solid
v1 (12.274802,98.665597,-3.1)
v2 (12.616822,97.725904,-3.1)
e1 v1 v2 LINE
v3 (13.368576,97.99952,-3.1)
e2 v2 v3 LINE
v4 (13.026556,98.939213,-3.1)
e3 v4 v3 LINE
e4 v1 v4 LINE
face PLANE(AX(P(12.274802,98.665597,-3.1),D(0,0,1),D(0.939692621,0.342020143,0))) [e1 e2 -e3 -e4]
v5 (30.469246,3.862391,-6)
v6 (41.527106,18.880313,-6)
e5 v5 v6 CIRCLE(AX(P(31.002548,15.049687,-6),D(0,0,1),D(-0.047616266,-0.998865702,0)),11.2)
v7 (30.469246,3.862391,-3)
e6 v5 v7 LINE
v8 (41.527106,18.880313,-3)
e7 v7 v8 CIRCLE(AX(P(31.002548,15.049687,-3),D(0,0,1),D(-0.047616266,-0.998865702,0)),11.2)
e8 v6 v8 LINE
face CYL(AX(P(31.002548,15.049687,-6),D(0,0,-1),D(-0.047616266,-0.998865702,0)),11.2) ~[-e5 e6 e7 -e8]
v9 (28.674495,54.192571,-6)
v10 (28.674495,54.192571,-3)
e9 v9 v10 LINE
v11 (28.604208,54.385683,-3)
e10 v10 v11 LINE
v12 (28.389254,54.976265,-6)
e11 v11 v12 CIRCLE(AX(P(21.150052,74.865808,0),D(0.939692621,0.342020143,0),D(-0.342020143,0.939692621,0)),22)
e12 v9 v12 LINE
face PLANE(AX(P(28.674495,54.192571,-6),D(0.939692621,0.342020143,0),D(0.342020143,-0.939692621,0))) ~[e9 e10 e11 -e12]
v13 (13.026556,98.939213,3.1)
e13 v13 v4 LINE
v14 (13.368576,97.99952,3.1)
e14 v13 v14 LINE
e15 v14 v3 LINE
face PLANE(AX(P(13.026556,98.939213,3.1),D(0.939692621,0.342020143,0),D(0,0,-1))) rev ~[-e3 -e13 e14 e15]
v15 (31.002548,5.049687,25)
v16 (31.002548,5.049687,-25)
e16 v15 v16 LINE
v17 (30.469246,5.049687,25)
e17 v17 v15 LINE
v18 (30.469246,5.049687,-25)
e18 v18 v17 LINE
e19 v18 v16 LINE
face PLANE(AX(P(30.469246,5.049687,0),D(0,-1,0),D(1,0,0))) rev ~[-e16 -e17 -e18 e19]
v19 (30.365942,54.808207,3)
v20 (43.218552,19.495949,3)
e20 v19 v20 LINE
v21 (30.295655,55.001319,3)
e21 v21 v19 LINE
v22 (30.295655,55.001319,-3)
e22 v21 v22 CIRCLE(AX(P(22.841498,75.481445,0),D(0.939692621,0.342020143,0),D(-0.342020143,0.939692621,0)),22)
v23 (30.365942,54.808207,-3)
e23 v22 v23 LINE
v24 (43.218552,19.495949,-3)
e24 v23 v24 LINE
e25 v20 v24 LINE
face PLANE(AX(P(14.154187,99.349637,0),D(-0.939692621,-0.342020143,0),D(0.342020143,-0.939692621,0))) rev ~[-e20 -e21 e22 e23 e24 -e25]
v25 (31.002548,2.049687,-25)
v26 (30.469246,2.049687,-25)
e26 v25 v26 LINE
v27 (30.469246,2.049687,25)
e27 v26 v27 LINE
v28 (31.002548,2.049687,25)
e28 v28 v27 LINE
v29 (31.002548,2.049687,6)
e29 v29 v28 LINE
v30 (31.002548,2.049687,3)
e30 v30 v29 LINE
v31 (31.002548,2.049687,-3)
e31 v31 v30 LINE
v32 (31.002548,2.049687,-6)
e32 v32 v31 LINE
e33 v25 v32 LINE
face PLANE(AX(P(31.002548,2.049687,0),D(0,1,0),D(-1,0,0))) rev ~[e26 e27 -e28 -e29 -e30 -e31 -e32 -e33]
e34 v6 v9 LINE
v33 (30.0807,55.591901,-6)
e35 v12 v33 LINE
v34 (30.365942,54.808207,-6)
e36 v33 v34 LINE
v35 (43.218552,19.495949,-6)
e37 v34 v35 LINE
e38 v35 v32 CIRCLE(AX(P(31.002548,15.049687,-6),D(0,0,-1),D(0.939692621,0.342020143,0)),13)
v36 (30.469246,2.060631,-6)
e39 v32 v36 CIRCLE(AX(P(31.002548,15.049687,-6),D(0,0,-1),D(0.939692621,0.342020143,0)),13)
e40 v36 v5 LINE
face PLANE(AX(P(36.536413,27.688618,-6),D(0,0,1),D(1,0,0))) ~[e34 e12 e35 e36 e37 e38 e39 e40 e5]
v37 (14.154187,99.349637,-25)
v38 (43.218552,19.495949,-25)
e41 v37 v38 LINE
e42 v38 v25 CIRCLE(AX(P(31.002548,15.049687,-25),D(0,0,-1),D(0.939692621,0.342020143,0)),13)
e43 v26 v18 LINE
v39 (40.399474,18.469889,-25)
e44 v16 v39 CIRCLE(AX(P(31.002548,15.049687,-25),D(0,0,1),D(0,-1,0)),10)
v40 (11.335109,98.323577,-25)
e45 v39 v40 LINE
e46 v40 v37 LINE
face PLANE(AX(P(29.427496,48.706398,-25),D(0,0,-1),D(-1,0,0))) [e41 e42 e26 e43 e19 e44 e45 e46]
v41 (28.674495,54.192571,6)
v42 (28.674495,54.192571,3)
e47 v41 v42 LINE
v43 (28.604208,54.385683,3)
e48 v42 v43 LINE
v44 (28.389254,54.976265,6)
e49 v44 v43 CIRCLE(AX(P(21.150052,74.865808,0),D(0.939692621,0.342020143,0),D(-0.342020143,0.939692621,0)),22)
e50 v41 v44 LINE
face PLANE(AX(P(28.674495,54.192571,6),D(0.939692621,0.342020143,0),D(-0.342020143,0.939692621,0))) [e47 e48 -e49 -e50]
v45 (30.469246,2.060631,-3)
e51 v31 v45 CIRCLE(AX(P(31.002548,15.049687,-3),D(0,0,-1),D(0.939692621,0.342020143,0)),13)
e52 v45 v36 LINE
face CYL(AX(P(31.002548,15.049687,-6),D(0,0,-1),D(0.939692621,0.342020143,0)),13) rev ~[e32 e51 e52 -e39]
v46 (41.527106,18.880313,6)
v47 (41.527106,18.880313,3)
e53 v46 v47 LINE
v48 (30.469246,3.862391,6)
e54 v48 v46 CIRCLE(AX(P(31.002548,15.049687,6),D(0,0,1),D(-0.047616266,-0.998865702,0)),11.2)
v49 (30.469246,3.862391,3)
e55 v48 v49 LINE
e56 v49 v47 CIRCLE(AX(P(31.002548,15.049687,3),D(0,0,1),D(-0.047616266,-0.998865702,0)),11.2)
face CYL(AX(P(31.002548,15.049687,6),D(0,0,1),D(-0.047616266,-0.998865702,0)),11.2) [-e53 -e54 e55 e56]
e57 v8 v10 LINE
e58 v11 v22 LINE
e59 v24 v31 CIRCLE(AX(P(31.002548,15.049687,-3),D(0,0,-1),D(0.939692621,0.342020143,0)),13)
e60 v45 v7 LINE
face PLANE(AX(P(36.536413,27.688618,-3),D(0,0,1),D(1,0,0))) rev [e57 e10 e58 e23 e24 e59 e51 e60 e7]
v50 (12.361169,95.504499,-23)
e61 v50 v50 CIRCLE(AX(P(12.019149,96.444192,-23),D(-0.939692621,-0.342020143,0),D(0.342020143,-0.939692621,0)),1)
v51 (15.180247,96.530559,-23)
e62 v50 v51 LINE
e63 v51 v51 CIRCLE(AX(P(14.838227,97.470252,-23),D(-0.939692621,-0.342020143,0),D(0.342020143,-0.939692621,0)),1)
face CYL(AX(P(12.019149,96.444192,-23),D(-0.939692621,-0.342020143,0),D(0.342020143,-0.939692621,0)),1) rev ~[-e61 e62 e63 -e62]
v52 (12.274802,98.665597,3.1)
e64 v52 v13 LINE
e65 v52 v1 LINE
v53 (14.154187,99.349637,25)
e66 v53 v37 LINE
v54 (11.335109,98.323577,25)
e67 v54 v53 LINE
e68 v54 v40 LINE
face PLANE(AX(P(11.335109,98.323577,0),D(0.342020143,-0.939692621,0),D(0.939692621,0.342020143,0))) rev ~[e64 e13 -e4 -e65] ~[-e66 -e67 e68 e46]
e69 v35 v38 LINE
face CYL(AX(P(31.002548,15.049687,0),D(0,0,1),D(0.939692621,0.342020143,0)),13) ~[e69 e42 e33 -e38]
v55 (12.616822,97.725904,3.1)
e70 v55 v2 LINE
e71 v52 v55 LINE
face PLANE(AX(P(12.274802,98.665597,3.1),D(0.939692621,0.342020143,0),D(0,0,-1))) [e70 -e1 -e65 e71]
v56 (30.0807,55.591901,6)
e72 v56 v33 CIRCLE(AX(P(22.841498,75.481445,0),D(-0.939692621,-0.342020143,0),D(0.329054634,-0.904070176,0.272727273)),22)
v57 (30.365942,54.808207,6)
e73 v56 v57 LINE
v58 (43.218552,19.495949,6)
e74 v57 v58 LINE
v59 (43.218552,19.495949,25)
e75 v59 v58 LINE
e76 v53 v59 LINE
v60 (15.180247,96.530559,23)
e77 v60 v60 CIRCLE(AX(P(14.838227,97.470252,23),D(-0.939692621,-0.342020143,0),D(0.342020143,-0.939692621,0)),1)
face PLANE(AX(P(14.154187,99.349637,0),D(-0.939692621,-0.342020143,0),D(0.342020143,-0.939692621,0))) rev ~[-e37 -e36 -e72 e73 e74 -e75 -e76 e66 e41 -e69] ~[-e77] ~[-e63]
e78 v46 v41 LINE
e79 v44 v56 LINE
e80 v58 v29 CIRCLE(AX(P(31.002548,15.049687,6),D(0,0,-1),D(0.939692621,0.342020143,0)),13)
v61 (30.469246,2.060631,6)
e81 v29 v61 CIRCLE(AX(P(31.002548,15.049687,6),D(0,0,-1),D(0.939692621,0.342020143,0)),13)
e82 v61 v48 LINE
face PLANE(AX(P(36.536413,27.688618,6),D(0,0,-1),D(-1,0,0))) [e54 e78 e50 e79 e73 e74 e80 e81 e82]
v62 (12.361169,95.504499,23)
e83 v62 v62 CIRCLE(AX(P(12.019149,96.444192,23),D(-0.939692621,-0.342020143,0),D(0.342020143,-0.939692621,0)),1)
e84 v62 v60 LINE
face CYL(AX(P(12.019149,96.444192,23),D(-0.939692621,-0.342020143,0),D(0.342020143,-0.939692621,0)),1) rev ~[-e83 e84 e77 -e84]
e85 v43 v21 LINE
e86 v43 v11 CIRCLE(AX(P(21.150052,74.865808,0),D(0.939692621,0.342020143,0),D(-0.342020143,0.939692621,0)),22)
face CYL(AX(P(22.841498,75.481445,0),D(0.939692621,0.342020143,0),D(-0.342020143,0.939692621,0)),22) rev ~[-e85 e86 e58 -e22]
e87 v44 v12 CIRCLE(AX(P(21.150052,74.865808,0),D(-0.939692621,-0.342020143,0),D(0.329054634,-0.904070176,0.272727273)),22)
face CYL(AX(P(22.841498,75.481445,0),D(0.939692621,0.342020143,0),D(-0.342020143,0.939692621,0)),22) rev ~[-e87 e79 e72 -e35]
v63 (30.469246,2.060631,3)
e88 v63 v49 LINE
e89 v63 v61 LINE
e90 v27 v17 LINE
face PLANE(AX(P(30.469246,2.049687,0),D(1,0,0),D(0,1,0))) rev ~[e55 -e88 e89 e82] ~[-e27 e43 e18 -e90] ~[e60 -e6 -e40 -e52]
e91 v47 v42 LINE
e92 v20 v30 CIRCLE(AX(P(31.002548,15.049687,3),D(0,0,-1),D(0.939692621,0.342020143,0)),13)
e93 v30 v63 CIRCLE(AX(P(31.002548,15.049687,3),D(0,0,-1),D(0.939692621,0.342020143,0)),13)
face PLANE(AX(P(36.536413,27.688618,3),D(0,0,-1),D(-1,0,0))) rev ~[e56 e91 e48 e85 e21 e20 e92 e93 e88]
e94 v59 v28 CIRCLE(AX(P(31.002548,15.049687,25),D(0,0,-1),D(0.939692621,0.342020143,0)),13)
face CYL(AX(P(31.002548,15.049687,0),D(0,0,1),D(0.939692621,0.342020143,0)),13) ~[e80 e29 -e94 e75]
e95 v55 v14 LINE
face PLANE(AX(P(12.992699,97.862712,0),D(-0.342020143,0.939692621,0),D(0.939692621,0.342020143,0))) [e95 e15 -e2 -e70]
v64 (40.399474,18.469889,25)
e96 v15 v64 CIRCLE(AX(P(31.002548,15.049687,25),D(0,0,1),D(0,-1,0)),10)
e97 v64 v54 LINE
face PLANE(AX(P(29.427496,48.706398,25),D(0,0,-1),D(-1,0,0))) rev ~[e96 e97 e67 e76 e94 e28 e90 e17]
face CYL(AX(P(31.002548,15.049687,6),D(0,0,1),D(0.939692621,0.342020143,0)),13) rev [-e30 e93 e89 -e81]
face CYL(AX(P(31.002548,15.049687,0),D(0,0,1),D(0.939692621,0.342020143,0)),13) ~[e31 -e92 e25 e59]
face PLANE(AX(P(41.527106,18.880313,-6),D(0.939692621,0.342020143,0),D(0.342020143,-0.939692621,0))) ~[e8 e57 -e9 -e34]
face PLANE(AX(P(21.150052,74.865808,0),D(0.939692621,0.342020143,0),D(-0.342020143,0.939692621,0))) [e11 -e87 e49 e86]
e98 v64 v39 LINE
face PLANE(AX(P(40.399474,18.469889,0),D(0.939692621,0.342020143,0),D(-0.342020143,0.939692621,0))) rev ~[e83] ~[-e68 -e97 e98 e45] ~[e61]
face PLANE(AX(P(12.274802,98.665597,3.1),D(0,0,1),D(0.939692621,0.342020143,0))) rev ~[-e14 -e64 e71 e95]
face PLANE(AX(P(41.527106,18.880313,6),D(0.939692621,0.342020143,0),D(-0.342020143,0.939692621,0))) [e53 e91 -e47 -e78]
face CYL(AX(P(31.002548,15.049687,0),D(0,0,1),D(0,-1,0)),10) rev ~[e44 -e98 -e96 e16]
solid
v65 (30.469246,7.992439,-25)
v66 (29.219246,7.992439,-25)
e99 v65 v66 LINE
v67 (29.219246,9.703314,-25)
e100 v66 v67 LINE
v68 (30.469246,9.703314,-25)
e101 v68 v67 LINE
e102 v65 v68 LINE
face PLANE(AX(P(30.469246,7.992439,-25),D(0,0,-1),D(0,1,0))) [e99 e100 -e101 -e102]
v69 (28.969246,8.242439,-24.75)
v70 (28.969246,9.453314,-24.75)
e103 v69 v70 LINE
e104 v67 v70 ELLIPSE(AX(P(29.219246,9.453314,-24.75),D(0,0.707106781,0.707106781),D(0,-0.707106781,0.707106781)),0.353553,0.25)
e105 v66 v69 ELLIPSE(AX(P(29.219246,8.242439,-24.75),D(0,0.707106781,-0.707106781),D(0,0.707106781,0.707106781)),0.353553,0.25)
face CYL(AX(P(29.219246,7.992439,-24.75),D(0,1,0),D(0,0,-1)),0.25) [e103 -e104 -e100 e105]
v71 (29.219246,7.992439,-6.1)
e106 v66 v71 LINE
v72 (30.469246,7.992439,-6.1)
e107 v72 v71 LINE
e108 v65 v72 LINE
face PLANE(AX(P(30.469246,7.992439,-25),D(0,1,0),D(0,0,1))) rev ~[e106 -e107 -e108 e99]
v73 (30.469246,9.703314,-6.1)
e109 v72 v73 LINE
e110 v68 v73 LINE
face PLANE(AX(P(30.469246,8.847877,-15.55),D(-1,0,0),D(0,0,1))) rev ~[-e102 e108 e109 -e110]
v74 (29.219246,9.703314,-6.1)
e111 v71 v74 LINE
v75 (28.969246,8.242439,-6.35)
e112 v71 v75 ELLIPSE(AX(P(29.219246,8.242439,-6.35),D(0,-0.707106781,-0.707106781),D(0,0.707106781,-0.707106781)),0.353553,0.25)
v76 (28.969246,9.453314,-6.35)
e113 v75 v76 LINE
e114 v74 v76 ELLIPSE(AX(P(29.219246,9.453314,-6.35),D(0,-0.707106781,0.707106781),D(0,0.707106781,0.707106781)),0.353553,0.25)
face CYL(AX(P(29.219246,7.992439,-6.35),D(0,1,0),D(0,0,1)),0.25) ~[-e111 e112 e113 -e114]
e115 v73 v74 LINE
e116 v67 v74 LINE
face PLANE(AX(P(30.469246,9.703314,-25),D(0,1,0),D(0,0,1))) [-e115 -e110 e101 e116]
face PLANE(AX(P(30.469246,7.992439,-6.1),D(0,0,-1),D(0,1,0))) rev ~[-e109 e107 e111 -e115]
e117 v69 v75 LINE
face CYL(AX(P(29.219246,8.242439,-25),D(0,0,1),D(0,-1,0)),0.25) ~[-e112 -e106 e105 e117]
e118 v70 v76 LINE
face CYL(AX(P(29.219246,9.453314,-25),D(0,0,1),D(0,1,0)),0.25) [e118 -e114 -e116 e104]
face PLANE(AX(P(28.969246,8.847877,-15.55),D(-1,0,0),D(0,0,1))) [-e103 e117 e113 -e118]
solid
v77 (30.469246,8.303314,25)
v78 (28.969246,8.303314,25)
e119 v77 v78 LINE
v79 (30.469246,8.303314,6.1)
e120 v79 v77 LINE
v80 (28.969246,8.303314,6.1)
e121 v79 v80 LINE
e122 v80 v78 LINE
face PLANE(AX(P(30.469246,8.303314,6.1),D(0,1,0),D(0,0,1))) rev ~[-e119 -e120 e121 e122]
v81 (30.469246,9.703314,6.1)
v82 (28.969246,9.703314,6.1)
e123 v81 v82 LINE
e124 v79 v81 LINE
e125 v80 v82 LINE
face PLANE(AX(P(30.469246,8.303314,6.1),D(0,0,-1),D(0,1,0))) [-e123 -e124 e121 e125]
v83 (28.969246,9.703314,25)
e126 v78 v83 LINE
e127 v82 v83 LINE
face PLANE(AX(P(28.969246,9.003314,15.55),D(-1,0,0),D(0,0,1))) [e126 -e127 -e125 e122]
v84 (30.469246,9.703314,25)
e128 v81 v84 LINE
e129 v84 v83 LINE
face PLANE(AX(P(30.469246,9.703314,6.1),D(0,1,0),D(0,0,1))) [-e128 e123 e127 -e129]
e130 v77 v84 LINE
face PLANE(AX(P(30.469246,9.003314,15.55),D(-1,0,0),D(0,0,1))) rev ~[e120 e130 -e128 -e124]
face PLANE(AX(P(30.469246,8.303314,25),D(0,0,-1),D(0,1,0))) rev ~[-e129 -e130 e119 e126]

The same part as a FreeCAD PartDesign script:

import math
import FreeCAD as App
import Part
import Sketcher
from FreeCAD import Vector
Q = App.Units.Quantity


def edges_at(feature, points):
    """Names of the edges that pass closest to the given points."""
    edges = feature.Shape.Edges
    near = lambda p: min(range(len(edges)), key=lambda i: edges[i].distToShape(Part.Vertex(*p))[0])
    return sorted({f"Edge{near(p) + 1}" for p in points})


def add_polygon(sketch, points):
    """Adds a closed chain of lines whose ends are joined by coincident constraints."""
    first, n = sketch.GeometryCount, len(points)
    for a, b in zip(points, points[1:] + points[:1]):
        sketch.addGeometry(Part.LineSegment(App.Vector(*a, 0), App.Vector(*b, 0)), False)
    for i in range(n):
        sketch.addConstraint(Sketcher.Constraint("Coincident", first + i, 2, first + (i + 1) % n, 1))

doc = App.newDocument("Part")
body = doc.addObject("PartDesign::Body", "Body")

sketch1 = body.newObject("Sketcher::SketchObject", "Sketch")
sketch1.AttachmentSupport = (doc.getObject("XY_Plane"), [""])
sketch1.MapMode = "FlatFace"
sketch1.addGeometry([
    Part.LineSegment(Vector(31.002548, 5.049687, 0), Vector(30.469246, 5.049687, 0)),
    Part.LineSegment(Vector(30.469246, 5.049687, 0), Vector(30.469246, 2.049687, 0)),
    Part.LineSegment(Vector(30.469246, 2.049687, 0), Vector(31.002548, 2.049687, 0)),
    Part.ArcOfCircle(Part.Circle(Vector(31.002548, 15.049687, 0), Vector(0, 0, 1), 13), math.radians(-90), math.radians(20)),
    Part.LineSegment(Vector(43.218552, 19.495949, 0), Vector(14.154187, 99.349637, 0)),
    Part.LineSegment(Vector(14.154187, 99.349637, 0), Vector(11.335109, 98.323577, 0)),
    Part.LineSegment(Vector(11.335109, 98.323577, 0), Vector(40.399474, 18.469889, 0)),
    Part.ArcOfCircle(Part.Circle(Vector(31.002548, 15.049687, 0), Vector(0, 0, 1), 10), math.radians(-90), math.radians(20)),
], False)
sketch1.addConstraint([
    Sketcher.Constraint("Coincident", 0, 2, 1, 1),
    Sketcher.Constraint("Coincident", 1, 2, 2, 1),
    Sketcher.Constraint("Tangent", 2, 2, 3, 1),
    Sketcher.Constraint("Tangent", 3, 2, 4, 1),
    Sketcher.Constraint("Coincident", 4, 2, 5, 1),
    Sketcher.Constraint("Coincident", 5, 2, 6, 1),
    Sketcher.Constraint("Tangent", 6, 2, 7, 2),
    Sketcher.Constraint("Tangent", 7, 1, 0, 1),
    Sketcher.Constraint("Horizontal", 0),
    Sketcher.Constraint("Vertical", 1),
    Sketcher.Constraint("Horizontal", 2),
    Sketcher.Constraint("Coincident", 7, 3, 3, 3),
    Sketcher.Constraint("Perpendicular", 4, 5),
    Sketcher.Constraint("Perpendicular", 5, 6),
    Sketcher.Constraint("Radius", 3, 13.0),
    Sketcher.Constraint("Radius", 7, 10.0),
    Sketcher.Constraint("Angle", 4, Q("110 deg")),
    Sketcher.Constraint("Distance", 4, 84.97852),
    Sketcher.Constraint("DistanceX", 0, 2, 0, 1, 0.533302),
    Sketcher.Constraint("DistanceX", -1, 1, 3, 3, 31.002548),
    Sketcher.Constraint("DistanceY", -1, 1, 3, 2, 19.495949),
])
pad1 = body.newObject("PartDesign::Pad", "Pad")
pad1.Profile = sketch1
pad1.Length = 50
pad1.Midplane = True

sketch2 = body.newObject("Sketcher::SketchObject", "Sketch001")
sketch2.Placement = App.Placement(Vector(44.428819, 16.170768, 0), App.Rotation(Vector(0, 0, -1), Vector(-0.342020143, 0.939692621, 0), Vector(0.939692621, 0.342020143, 0), "ZXY"))
sketch2.addGeometry(Part.Circle(Vector(0, 63.117104, 0), Vector(0, 0, 1), 22), False)
sketch2.addConstraint([
    Sketcher.Constraint("PointOnObject", 0, 3, -2),
    Sketcher.Constraint("Diameter", 0, 44.0),
    Sketcher.Constraint("DistanceY", -1, 1, 0, 3, 63.117104),
])
pocket1 = body.newObject("PartDesign::Pocket", "Pocket")
pocket1.Profile = sketch2
pocket1.Length = 1.8

sketch3 = body.newObject("Sketcher::SketchObject", "Sketch002")
sketch3.AttachmentSupport = (doc.getObject("XY_Plane"), [""])
sketch3.MapMode = "FlatFace"
sketch3.AttachmentOffset = App.Placement(Vector(0, 0, 6), App.Rotation())
sketch3.addGeometry([
    Part.ArcOfCircle(Part.Circle(Vector(31.002548, 15.049687, 0), Vector(0, 0, 1), 11.2), math.radians(-92.729243), math.radians(20)),
    Part.LineSegment(Vector(30.469246, 3.862391, 0), Vector(30.383537, 2.064433, 0)),
    Part.ArcOfCircle(Part.Circle(Vector(31.002548, 15.049687, 0), Vector(0, 0, 1), 13), math.radians(-92.729243), math.radians(20)),
    Part.LineSegment(Vector(43.218552, 19.495949, 0), Vector(30.365942, 54.808207, 0)),
    Part.LineSegment(Vector(30.365942, 54.808207, 0), Vector(29.339881, 57.627285, 0)),
    Part.LineSegment(Vector(29.339881, 57.627285, 0), Vector(27.648434, 57.011649, 0)),
    Part.LineSegment(Vector(27.648434, 57.011649, 0), Vector(28.674495, 54.192571, 0)),
    Part.LineSegment(Vector(28.674495, 54.192571, 0), Vector(41.527106, 18.880313, 0)),
], False)
sketch3.addConstraint([
    Sketcher.Constraint("Coincident", 0, 1, 1, 1),
    Sketcher.Constraint("Coincident", 1, 2, 2, 1),
    Sketcher.Constraint("Tangent", 2, 2, 3, 1),
    Sketcher.Constraint("Coincident", 3, 2, 4, 1),
    Sketcher.Constraint("Coincident", 4, 2, 5, 1),
    Sketcher.Constraint("Coincident", 5, 2, 6, 1),
    Sketcher.Constraint("Coincident", 6, 2, 7, 1),
    Sketcher.Constraint("Tangent", 7, 2, 0, 2),
    Sketcher.Constraint("Coincident", 2, 3, 0, 3),
    Sketcher.Constraint("Parallel", 3, 4),
    Sketcher.Constraint("Perpendicular", 4, 5),
    Sketcher.Constraint("Perpendicular", 5, 6),
    Sketcher.Constraint("Parallel", 6, 7),
    Sketcher.Constraint("Equal", 4, 6),
    Sketcher.Constraint("Radius", 2, 13.0),
    Sketcher.Constraint("Radius", 0, 11.2),
    Sketcher.Constraint("Angle", 3, Q("110 deg")),
    Sketcher.Constraint("Distance", 4, 3.0),
    Sketcher.Constraint("DistanceY", 2, 2, 5, 2, 37.515699),
    Sketcher.Constraint("DistanceX", -1, 1, 0, 3, 31.002548),
    Sketcher.Constraint("DistanceY", -1, 1, 0, 1, 3.862391),
    Sketcher.Constraint("DistanceY", -1, 1, 2, 2, 19.495949),
    Sketcher.Constraint("DistanceX", 1, 2, 0, 1, 0.085709),
])
pocket2 = body.newObject("PartDesign::Pocket", "Pocket001")
pocket2.Profile = sketch3
pocket2.Length = 3
doc.recompute()

mirrored = body.newObject("PartDesign::Mirrored", "Mirrored")
mirrored.Originals = [pocket2]
mirrored.MirrorPlane = (doc.getObject("XY_Plane"), [""])
body.Tip = mirrored

sketch4 = body.newObject("Sketcher::SketchObject", "Sketch003")
sketch4.Placement = App.Placement(Vector(41.609742, 15.144707, 0), App.Rotation(Vector(0, 0, 1), Vector(-0.342020143, 0.939692621, 0), Vector(-0.939692621, -0.342020143, 0), "ZXY"))
sketch4.addGeometry([
    Part.Circle(Vector(23, 86.517104, 0), Vector(0, 0, 1), 1),
    Part.Circle(Vector(-23, 86.517104, 0), Vector(0, 0, 1), 1),
], False)
sketch4.addConstraint([
    Sketcher.Constraint("Equal", 0, 1),
    Sketcher.Constraint("Symmetric", 0, 3, 1, 3, -2),
    Sketcher.Constraint("Diameter", 0, 2.0),
    Sketcher.Constraint("DistanceX", -1, 1, 0, 3, 23.0),
    Sketcher.Constraint("DistanceY", -1, 1, 0, 3, 86.517104),
])
pocket3 = body.newObject("PartDesign::Pocket", "Pocket002")
pocket3.Profile = sketch4
pocket3.Type = "ThroughAll"

sketch5 = body.newObject("Sketcher::SketchObject", "Sketch004")
sketch5.Placement = App.Placement(Vector(-30.274633, 83.178869, 0), App.Rotation(Vector(0.939692621, 0.342020143, 0), Vector(0, 0, -1), Vector(-0.342020143, 0.939692621, 0), "ZXY"))
add_polygon(sketch5, [(45.280162, 3.1), (45.280162, -3.1), (46.080162, -3.1), (46.080162, 3.1)])
sketch5.addConstraint([
    Sketcher.Constraint("Vertical", 0),
    Sketcher.Constraint("Horizontal", 1),
    Sketcher.Constraint("Vertical", 2),
    Sketcher.Constraint("Horizontal", 3),
    Sketcher.Constraint("DistanceX", 1, 1, 1, 2, 0.8),
    Sketcher.Constraint("DistanceY", 0, 2, 0, 1, 6.2),
    Sketcher.Constraint("DistanceY", 0, 2, -1, 1, 3.1),
    Sketcher.Constraint("DistanceX", -1, 1, 0, 2, 45.280162),
])
pocket4 = body.newObject("PartDesign::Pocket", "Pocket003")
pocket4.Profile = sketch5
pocket4.Length = 1
body2 = doc.addObject("PartDesign::Body", "Body001")

sketch6 = body2.newObject("Sketcher::SketchObject", "Sketch005")
sketch6.AttachmentSupport = (doc.getObject("YZ_Plane001"), [""])
sketch6.MapMode = "FlatFace"
sketch6.AttachmentOffset = App.Placement(Vector(0, 0, 30.469246), App.Rotation())
add_polygon(sketch6, [(9.703314, -25), (7.992439, -25), (7.992439, -6.1), (9.703314, -6.1)])
sketch6.addConstraint([
    Sketcher.Constraint("Horizontal", 0),
    Sketcher.Constraint("Vertical", 1),
    Sketcher.Constraint("Horizontal", 2),
    Sketcher.Constraint("Vertical", 3),
    Sketcher.Constraint("DistanceY", 1, 1, 1, 2, 18.9),
    Sketcher.Constraint("DistanceY", 0, 2, -1, 1, 25.0),
    Sketcher.Constraint("DistanceX", 0, 2, 0, 1, 1.710875),
    Sketcher.Constraint("DistanceX", -1, 1, 0, 2, 7.992439),
])
pad2 = body2.newObject("PartDesign::Pad", "Pad001")
pad2.Profile = sketch6
pad2.Length = 1.5
pad2.Reversed = True
doc.recompute()

fillet = body2.newObject("PartDesign::Fillet", "Fillet")
fillet.Base = (pad2, edges_at(pad2, [
    (28.969, 8.848, -6.1),
    (28.969, 9.703, -15.55),
    (28.969, 8.848, -25),
    (28.969, 7.992, -15.55),
]))
fillet.Radius = 0.25
body3 = doc.addObject("PartDesign::Body", "Body002")

sketch7 = body3.newObject("Sketcher::SketchObject", "Sketch006")
sketch7.AttachmentSupport = (doc.getObject("YZ_Plane002"), [""])
sketch7.MapMode = "FlatFace"
sketch7.AttachmentOffset = App.Placement(Vector(0, 0, 30.469246), App.Rotation())
add_polygon(sketch7, [(9.703314, 6.1), (8.303314, 6.1), (8.303314, 25), (9.703314, 25)])
sketch7.addConstraint([
    Sketcher.Constraint("Horizontal", 0),
    Sketcher.Constraint("Vertical", 1),
    Sketcher.Constraint("Horizontal", 2),
    Sketcher.Constraint("Vertical", 3),
    Sketcher.Constraint("DistanceX", 0, 2, 0, 1, 1.4),
    Sketcher.Constraint("DistanceY", 1, 1, 1, 2, 18.9),
    Sketcher.Constraint("DistanceY", -1, 1, 1, 2, 25.0),
    Sketcher.Constraint("DistanceX", -1, 1, 0, 2, 8.303314),
])
pad3 = body3.newObject("PartDesign::Pad", "Pad002")
pad3.Profile = sketch7
pad3.Length = 1.5
pad3.Reversed = True

doc.recompute()
